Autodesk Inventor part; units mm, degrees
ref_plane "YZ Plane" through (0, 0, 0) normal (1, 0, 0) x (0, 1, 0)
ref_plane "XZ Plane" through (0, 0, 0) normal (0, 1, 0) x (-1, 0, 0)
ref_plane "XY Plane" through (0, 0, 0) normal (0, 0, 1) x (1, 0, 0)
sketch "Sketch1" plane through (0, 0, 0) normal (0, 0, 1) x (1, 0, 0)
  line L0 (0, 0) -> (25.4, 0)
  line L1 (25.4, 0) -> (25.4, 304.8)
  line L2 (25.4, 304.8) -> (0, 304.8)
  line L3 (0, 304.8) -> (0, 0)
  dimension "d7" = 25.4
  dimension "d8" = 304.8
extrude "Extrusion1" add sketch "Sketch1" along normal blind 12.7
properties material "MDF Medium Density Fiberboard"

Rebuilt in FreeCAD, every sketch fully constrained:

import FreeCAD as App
import Part
import Sketcher
Q = App.Units.Quantity

doc = App.newDocument("Part")
params = doc.addObject("Spreadsheet::Sheet", "Params")
for row, (alias, value) in enumerate([
    ("sketch1_width", "1 in"),
    ("sketch1_height", "12 in"),
    ("pad1_length", "0.5 in"),
], start=1):
    params.set(f"A{row}", alias)
    params.set(f"B{row}", "=" + value)
    params.setAlias(f"B{row}", alias)

body = doc.addObject("PartDesign::Body", "Body")

sketch1 = doc.addObject("Sketcher::SketchObject", "Sketch")
body.addObject(sketch1)
sketch1.AttachmentSupport = (doc.XY_Plane, [""])
sketch1.MapMode = "FlatFace"
sketch1.addGeometry(Part.LineSegment(App.Vector(0, 305, 0), App.Vector(0, 0, 0)), False)
sketch1.addGeometry(Part.LineSegment(App.Vector(0, 0, 0), App.Vector(25, 0, 0)), False)
sketch1.addGeometry(Part.LineSegment(App.Vector(25, 0, 0), App.Vector(25, 305, 0)), False)
sketch1.addGeometry(Part.LineSegment(App.Vector(25, 305, 0), App.Vector(0, 305, 0)), False)
sketch1.addConstraint(Sketcher.Constraint("Coincident", 0, 2, 1, 1))
sketch1.addConstraint(Sketcher.Constraint("Coincident", 1, 2, 2, 1))
sketch1.addConstraint(Sketcher.Constraint("Coincident", 2, 2, 3, 1))
sketch1.addConstraint(Sketcher.Constraint("Coincident", 3, 2, 0, 1))
sketch1.addConstraint(Sketcher.Constraint("Vertical", 0))
sketch1.addConstraint(Sketcher.Constraint("Horizontal", 1))
sketch1.addConstraint(Sketcher.Constraint("Vertical", 2))
sketch1.addConstraint(Sketcher.Constraint("Horizontal", 3))
sketch1.addConstraint(Sketcher.Constraint("Coincident", 0, 2, -1, 1))
sketch1.addConstraint(Sketcher.Constraint("DistanceX", 1, 1, 1, 2, Q("1 in")))
sketch1.addConstraint(Sketcher.Constraint("DistanceY", 0, 2, 0, 1, Q("12 in")))
sketch1.setExpression("Constraints[9]", "Params.sketch1_width")
sketch1.setExpression("Constraints[10]", "Params.sketch1_height")
pad1 = doc.addObject("PartDesign::Pad", "Pad")
body.addObject(pad1)
pad1.Profile = sketch1
pad1.setExpression("Length", "Params.pad1_length")

doc.recompute()
